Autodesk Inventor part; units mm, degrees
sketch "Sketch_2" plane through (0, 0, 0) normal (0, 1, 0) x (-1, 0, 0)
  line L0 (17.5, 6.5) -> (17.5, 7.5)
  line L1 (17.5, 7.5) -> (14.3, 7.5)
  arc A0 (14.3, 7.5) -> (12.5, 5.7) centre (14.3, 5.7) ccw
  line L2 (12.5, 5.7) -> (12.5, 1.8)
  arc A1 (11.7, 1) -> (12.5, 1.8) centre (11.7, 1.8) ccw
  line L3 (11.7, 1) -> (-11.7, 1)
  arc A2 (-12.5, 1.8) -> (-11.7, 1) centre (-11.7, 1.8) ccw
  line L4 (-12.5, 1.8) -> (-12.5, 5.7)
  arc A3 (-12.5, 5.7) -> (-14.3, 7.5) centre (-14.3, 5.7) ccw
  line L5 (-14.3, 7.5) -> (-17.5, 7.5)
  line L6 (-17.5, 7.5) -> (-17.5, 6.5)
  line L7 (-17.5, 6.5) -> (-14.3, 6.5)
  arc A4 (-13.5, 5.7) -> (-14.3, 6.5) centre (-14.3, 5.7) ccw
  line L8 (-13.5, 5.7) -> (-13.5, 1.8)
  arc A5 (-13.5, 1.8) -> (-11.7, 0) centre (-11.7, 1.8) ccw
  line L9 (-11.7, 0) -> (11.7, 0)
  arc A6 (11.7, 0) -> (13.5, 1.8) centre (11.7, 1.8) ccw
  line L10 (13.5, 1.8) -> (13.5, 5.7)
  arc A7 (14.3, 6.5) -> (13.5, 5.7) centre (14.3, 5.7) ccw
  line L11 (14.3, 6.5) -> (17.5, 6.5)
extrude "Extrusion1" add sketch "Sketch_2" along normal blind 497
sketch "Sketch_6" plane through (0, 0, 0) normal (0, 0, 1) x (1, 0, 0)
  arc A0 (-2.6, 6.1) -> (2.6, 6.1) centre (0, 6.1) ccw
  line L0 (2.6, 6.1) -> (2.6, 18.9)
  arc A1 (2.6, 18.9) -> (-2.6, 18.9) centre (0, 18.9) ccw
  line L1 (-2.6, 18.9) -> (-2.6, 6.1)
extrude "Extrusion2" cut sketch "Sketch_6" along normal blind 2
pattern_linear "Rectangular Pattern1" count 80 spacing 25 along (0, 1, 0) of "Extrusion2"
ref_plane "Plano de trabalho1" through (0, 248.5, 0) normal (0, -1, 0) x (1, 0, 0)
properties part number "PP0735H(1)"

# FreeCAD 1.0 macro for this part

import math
import FreeCAD as App
import Part
import Sketcher

doc = App.newDocument("Part")
body = doc.addObject("PartDesign::Body", "Body")

# Sketch on XZ plane
sketch1 = body.newObject("Sketcher::SketchObject", "Sketch")
sketch1.AttachmentSupport = (doc.getObject("XZ_Plane"), [""])
sketch1.MapMode = "FlatFace"
sketch1.addGeometry(Part.LineSegment(App.Vector(-14.3, 6.5, 0), App.Vector(-17.5, 6.5, 0)), False)
sketch1.addGeometry(Part.LineSegment(App.Vector(-17.5, 6.5, 0), App.Vector(-17.5, 7.5, 0)), False)
sketch1.addGeometry(Part.LineSegment(App.Vector(-17.5, 7.5, 0), App.Vector(-14.3, 7.5, 0)), False)
sketch1.addGeometry(Part.ArcOfCircle(Part.Circle(App.Vector(-14.3, 5.7, 0), App.Vector(0, 0, 1), 1.8), math.radians(0), math.radians(90)), False)
sketch1.addGeometry(Part.LineSegment(App.Vector(-12.5, 5.7, 0), App.Vector(-12.5, 1.8, 0)), False)
sketch1.addGeometry(Part.ArcOfCircle(Part.Circle(App.Vector(-11.7, 1.8, 0), App.Vector(0, 0, 1), 0.8), math.radians(180), math.radians(270)), False)
sketch1.addGeometry(Part.LineSegment(App.Vector(-11.7, 1, 0), App.Vector(11.7, 1, 0)), False)
sketch1.addGeometry(Part.ArcOfCircle(Part.Circle(App.Vector(11.7, 1.8, 0), App.Vector(0, 0, 1), 0.8), math.radians(-90), math.radians(0)), False)
sketch1.addGeometry(Part.LineSegment(App.Vector(12.5, 1.8, 0), App.Vector(12.5, 5.7, 0)), False)
sketch1.addGeometry(Part.ArcOfCircle(Part.Circle(App.Vector(14.3, 5.7, 0), App.Vector(0, 0, 1), 1.8), math.radians(90), math.radians(180)), False)
sketch1.addGeometry(Part.LineSegment(App.Vector(14.3, 7.5, 0), App.Vector(17.5, 7.5, 0)), False)
sketch1.addGeometry(Part.LineSegment(App.Vector(17.5, 7.5, 0), App.Vector(17.5, 6.5, 0)), False)
sketch1.addGeometry(Part.LineSegment(App.Vector(17.5, 6.5, 0), App.Vector(14.3, 6.5, 0)), False)
sketch1.addGeometry(Part.ArcOfCircle(Part.Circle(App.Vector(14.3, 5.7, 0), App.Vector(0, 0, 1), 0.8), math.radians(90), math.radians(180)), False)
sketch1.addGeometry(Part.LineSegment(App.Vector(13.5, 5.7, 0), App.Vector(13.5, 1.8, 0)), False)
sketch1.addGeometry(Part.ArcOfCircle(Part.Circle(App.Vector(11.7, 1.8, 0), App.Vector(0, 0, 1), 1.8), math.radians(-90), math.radians(0)), False)
sketch1.addGeometry(Part.LineSegment(App.Vector(11.7, 0, 0), App.Vector(-11.7, 0, 0)), False)
sketch1.addGeometry(Part.ArcOfCircle(Part.Circle(App.Vector(-11.7, 1.8, 0), App.Vector(0, 0, 1), 1.8), math.radians(180), math.radians(270)), False)
sketch1.addGeometry(Part.LineSegment(App.Vector(-13.5, 1.8, 0), App.Vector(-13.5, 5.7, 0)), False)
sketch1.addGeometry(Part.ArcOfCircle(Part.Circle(App.Vector(-14.3, 5.7, 0), App.Vector(0, 0, 1), 0.8), math.radians(0), math.radians(90)), False)
sketch1.addConstraint(Sketcher.Constraint("Coincident", 0, 2, 1, 1))
sketch1.addConstraint(Sketcher.Constraint("Coincident", 1, 2, 2, 1))
sketch1.addConstraint(Sketcher.Constraint("Tangent", 2, 2, 3, 2))
sketch1.addConstraint(Sketcher.Constraint("Tangent", 3, 1, 4, 1))
sketch1.addConstraint(Sketcher.Constraint("Tangent", 4, 2, 5, 1))
sketch1.addConstraint(Sketcher.Constraint("Tangent", 5, 2, 6, 1))
sketch1.addConstraint(Sketcher.Constraint("Tangent", 6, 2, 7, 1))
sketch1.addConstraint(Sketcher.Constraint("Tangent", 7, 2, 8, 1))
sketch1.addConstraint(Sketcher.Constraint("Tangent", 8, 2, 9, 2))
sketch1.addConstraint(Sketcher.Constraint("Tangent", 9, 1, 10, 1))
sketch1.addConstraint(Sketcher.Constraint("Coincident", 10, 2, 11, 1))
sketch1.addConstraint(Sketcher.Constraint("Coincident", 11, 2, 12, 1))
sketch1.addConstraint(Sketcher.Constraint("Tangent", 12, 2, 13, 1))
sketch1.addConstraint(Sketcher.Constraint("Tangent", 13, 2, 14, 1))
sketch1.addConstraint(Sketcher.Constraint("Tangent", 14, 2, 15, 2))
sketch1.addConstraint(Sketcher.Constraint("Tangent", 15, 1, 16, 1))
sketch1.addConstraint(Sketcher.Constraint("Tangent", 16, 2, 17, 2))
sketch1.addConstraint(Sketcher.Constraint("Tangent", 17, 1, 18, 1))
sketch1.addConstraint(Sketcher.Constraint("Tangent", 18, 2, 19, 1))
sketch1.addConstraint(Sketcher.Constraint("Tangent", 19, 2, 0, 1))
sketch1.addConstraint(Sketcher.Constraint("Horizontal", 0))
sketch1.addConstraint(Sketcher.Constraint("Vertical", 1))
sketch1.addConstraint(Sketcher.Constraint("Horizontal", 2))
sketch1.addConstraint(Sketcher.Constraint("Vertical", 4))
sketch1.addConstraint(Sketcher.Constraint("Horizontal", 6))
sketch1.addConstraint(Sketcher.Constraint("Vertical", 8))
sketch1.addConstraint(Sketcher.Constraint("Horizontal", 10))
sketch1.addConstraint(Sketcher.Constraint("Vertical", 11))
sketch1.addConstraint(Sketcher.Constraint("Horizontal", 12))
sketch1.addConstraint(Sketcher.Constraint("Vertical", 14))
sketch1.addConstraint(Sketcher.Constraint("Horizontal", 16))
sketch1.addConstraint(Sketcher.Constraint("Vertical", 18))
sketch1.addConstraint(Sketcher.Constraint("Coincident", 13, 3, 9, 3))
sketch1.addConstraint(Sketcher.Constraint("Coincident", 15, 3, 7, 3))
sketch1.addConstraint(Sketcher.Constraint("Coincident", 17, 3, 5, 3))
sketch1.addConstraint(Sketcher.Constraint("Coincident", 19, 3, 3, 3))
sketch1.addConstraint(Sketcher.Constraint("Equal", 5, 7))
sketch1.addConstraint(Sketcher.Constraint("Equal", 3, 9))
sketch1.addConstraint(Sketcher.Constraint("Equal", 7, 13))
sketch1.addConstraint(Sketcher.Constraint("Symmetric", 15, 1, 16, 2, -1, 1))
sketch1.addConstraint(Sketcher.Constraint("Symmetric", 1, 2, 10, 2, -2))
sketch1.addConstraint(Sketcher.Constraint("Radius", 3, 1.8))
sketch1.addConstraint(Sketcher.Constraint("Radius", 5, 0.8))
sketch1.addConstraint(Sketcher.Constraint("DistanceX", 0, 2, 0, 1, 3.2))
sketch1.addConstraint(Sketcher.Constraint("DistanceX", 6, 1, 6, 2, 23.4))
sketch1.addConstraint(Sketcher.Constraint("DistanceY", 4, 2, 4, 1, 3.9))
pad1 = body.newObject("PartDesign::Pad", "Pad")
pad1.Profile = sketch1
pad1.Length = 497
pad1.Reversed = True

# Sketch on XY plane
sketch2 = body.newObject("Sketcher::SketchObject", "Sketch001")
sketch2.AttachmentSupport = (doc.getObject("XY_Plane"), [""])
sketch2.MapMode = "FlatFace"
sketch2.addGeometry(Part.LineSegment(App.Vector(-2.6, 18.9, 0), App.Vector(-2.6, 6.1, 0)), False)
sketch2.addGeometry(Part.ArcOfCircle(Part.Circle(App.Vector(0, 6.1, 0), App.Vector(0, 0, 1), 2.6), math.radians(180), math.radians(360)), False)
sketch2.addGeometry(Part.LineSegment(App.Vector(2.6, 6.1, 0), App.Vector(2.6, 18.9, 0)), False)
sketch2.addGeometry(Part.ArcOfCircle(Part.Circle(App.Vector(0, 18.9, 0), App.Vector(0, 0, 1), 2.6), math.radians(0), math.radians(180)), False)
sketch2.addConstraint(Sketcher.Constraint("Tangent", 0, 2, 1, 1))
sketch2.addConstraint(Sketcher.Constraint("Tangent", 1, 2, 2, 1))
sketch2.addConstraint(Sketcher.Constraint("Tangent", 2, 2, 3, 1))
sketch2.addConstraint(Sketcher.Constraint("Tangent", 3, 2, 0, 1))
sketch2.addConstraint(Sketcher.Constraint("Vertical", 0))
sketch2.addConstraint(Sketcher.Constraint("Vertical", 2))
sketch2.addConstraint(Sketcher.Constraint("PointOnObject", 1, 3, -2))
sketch2.addConstraint(Sketcher.Constraint("Radius", 1, 2.6))
sketch2.addConstraint(Sketcher.Constraint("DistanceY", 0, 2, 0, 1, 12.8))
sketch2.addConstraint(Sketcher.Constraint("DistanceY", -1, 1, 1, 3, 6.1))
pocket1 = body.newObject("PartDesign::Pocket", "Pocket")
pocket1.Profile = sketch2
pocket1.Length = 2
pocket1.Reversed = True
doc.recompute()

linearpattern = body.newObject("PartDesign::LinearPattern", "LinearPattern")
linearpattern.Originals = [pocket1]
linearpattern.Direction = (doc.getObject("Y_Axis"), [""])
linearpattern.Mode = "offset"
linearpattern.Offset = 25
linearpattern.Occurrences = 80
body.Tip = linearpattern

doc.recompute()
